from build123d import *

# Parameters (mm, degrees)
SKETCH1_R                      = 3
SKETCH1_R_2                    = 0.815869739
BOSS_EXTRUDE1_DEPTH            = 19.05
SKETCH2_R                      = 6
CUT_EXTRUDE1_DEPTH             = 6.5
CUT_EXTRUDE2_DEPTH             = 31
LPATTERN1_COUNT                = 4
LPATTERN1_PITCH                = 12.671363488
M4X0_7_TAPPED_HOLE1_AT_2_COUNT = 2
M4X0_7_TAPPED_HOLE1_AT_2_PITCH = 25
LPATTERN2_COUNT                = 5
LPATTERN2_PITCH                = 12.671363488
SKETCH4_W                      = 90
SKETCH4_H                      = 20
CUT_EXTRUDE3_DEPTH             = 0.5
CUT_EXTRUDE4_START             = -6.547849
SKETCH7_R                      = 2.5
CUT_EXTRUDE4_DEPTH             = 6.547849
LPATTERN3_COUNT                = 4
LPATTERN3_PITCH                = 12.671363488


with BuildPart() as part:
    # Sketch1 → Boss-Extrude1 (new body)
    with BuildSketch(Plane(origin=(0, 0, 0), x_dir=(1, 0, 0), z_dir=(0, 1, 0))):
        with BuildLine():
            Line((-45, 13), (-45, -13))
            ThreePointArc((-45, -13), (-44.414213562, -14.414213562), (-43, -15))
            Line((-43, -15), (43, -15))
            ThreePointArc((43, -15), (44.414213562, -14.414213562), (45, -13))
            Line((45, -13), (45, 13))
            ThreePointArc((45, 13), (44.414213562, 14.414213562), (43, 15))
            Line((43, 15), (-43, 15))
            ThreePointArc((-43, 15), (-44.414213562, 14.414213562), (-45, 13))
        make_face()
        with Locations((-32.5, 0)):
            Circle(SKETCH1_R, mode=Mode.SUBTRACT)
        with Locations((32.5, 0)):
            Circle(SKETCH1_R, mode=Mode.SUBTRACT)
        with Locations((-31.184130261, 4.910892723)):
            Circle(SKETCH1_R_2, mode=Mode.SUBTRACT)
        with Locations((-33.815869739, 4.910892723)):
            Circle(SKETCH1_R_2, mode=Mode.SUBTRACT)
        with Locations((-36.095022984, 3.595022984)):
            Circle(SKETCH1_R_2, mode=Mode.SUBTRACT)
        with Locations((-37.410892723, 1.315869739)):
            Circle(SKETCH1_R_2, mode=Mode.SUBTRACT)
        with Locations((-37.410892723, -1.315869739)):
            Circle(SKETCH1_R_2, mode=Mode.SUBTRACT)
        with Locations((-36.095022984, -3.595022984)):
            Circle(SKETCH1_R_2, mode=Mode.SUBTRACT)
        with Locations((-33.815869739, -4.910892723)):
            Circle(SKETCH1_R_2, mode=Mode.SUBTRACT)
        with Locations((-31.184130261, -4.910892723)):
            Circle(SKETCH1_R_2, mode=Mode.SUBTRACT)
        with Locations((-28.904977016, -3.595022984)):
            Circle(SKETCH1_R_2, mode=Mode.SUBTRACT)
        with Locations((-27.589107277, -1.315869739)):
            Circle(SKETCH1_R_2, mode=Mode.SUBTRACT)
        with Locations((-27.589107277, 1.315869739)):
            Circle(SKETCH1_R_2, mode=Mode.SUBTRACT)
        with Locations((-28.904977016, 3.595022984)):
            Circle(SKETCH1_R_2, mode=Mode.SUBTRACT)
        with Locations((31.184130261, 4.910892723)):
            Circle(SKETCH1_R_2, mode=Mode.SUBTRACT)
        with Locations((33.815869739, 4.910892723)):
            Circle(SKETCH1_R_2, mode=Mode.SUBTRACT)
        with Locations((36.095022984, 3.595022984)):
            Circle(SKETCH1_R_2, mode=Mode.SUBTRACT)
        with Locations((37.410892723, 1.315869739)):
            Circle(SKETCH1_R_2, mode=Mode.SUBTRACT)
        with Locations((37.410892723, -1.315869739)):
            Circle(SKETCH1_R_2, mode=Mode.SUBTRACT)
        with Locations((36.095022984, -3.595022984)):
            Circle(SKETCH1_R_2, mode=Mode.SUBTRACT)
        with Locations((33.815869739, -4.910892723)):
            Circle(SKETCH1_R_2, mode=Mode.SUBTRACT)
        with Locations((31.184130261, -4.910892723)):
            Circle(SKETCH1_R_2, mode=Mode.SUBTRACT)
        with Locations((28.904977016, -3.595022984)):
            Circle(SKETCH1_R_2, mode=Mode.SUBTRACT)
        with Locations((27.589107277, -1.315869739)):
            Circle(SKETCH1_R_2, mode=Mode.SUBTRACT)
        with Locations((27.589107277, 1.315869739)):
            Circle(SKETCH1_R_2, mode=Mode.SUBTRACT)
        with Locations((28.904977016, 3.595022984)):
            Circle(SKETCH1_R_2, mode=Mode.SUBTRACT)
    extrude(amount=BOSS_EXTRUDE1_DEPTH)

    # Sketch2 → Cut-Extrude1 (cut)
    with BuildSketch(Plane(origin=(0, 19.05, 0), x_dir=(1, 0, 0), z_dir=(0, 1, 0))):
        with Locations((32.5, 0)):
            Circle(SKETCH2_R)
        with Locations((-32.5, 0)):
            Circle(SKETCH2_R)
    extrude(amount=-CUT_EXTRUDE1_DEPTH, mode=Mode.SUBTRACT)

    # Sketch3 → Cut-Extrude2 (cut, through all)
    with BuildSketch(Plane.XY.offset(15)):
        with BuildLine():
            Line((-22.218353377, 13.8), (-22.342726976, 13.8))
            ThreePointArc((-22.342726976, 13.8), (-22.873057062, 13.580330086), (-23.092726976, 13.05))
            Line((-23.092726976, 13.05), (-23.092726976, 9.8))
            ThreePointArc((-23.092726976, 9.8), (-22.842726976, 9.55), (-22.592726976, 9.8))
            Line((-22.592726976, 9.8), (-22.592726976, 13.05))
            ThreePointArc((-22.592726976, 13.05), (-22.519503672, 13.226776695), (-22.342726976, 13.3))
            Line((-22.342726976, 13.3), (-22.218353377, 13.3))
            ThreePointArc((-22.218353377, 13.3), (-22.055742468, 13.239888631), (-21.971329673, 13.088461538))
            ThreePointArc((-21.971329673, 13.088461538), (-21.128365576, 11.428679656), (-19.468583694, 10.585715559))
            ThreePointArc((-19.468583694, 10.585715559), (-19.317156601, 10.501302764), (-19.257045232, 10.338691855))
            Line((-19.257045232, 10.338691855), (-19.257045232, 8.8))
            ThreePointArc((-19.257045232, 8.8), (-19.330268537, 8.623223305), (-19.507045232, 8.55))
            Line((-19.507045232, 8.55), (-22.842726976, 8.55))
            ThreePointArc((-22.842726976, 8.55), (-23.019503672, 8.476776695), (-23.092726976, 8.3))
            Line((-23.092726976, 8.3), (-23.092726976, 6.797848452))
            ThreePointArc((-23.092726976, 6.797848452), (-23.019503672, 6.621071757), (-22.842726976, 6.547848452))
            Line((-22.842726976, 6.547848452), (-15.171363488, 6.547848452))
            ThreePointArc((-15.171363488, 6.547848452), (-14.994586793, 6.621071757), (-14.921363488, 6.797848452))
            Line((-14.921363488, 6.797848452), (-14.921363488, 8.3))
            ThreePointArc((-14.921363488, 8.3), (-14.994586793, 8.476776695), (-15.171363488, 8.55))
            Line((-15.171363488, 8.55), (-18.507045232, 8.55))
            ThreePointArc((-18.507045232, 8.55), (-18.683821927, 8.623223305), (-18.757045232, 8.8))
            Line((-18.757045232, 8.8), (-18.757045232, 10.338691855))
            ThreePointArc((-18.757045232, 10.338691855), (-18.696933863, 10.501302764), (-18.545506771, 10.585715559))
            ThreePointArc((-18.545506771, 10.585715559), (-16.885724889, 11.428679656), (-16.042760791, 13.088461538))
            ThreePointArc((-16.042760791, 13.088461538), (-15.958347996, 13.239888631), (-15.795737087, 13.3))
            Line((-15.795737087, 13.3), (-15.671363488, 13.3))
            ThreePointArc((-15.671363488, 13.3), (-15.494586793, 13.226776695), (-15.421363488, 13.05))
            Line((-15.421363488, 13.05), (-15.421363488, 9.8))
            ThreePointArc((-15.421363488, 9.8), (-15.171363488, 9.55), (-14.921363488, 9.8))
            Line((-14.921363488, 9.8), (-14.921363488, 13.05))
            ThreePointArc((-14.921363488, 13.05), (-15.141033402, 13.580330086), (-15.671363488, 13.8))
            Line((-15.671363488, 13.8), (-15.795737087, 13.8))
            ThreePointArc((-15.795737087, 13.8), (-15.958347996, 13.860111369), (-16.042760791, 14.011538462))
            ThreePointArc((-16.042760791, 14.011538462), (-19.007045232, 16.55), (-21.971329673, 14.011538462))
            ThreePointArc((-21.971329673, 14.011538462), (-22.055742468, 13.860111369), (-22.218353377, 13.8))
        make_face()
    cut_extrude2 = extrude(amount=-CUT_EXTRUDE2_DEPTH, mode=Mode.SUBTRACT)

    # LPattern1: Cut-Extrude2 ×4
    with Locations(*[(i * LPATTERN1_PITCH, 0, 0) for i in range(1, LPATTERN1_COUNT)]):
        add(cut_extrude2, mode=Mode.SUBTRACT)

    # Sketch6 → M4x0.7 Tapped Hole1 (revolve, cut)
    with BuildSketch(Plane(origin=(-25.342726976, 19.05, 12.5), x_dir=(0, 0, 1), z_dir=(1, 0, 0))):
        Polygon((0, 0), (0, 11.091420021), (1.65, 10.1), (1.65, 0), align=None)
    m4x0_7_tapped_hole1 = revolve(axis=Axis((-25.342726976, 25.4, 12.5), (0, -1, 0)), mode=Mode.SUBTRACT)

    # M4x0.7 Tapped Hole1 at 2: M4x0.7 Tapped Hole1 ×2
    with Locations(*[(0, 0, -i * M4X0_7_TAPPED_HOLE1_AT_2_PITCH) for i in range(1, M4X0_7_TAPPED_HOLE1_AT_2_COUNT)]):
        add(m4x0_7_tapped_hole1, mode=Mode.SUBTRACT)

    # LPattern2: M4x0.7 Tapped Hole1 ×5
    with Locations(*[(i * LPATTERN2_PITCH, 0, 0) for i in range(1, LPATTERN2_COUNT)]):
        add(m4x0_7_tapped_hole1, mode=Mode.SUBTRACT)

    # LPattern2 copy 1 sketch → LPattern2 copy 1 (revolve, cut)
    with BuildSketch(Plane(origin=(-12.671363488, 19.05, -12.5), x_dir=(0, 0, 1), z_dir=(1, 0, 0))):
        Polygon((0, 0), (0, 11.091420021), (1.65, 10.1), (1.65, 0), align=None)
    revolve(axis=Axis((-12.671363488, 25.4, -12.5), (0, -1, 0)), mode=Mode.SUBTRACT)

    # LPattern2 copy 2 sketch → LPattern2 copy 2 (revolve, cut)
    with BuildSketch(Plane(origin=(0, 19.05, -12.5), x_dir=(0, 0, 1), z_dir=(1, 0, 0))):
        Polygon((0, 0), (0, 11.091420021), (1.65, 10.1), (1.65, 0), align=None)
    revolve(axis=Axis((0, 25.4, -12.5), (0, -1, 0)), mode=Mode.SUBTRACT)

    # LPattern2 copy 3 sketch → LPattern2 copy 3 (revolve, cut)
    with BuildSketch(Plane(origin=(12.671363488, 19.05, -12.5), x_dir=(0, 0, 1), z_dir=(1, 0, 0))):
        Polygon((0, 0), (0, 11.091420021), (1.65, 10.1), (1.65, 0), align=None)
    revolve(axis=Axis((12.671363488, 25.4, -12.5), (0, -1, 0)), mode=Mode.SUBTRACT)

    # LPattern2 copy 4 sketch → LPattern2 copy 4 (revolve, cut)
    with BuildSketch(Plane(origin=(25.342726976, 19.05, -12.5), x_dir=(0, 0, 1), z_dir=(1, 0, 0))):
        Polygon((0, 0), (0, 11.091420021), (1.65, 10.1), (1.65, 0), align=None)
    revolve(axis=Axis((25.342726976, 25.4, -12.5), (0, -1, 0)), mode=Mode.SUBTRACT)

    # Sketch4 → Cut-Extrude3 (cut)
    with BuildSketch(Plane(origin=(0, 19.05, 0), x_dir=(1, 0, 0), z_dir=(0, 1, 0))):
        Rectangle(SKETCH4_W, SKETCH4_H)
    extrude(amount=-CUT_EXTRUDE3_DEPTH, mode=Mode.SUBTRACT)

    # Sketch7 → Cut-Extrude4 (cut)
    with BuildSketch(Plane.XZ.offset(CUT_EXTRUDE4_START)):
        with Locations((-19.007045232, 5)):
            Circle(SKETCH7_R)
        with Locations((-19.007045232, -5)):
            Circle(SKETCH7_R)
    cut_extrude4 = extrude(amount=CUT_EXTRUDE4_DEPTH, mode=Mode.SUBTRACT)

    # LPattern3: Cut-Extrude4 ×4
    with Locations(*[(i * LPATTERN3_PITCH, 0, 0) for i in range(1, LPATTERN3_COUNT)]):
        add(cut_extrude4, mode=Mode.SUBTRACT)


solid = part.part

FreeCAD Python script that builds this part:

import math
import FreeCAD as App
import Part
import Sketcher
Q = App.Units.Quantity


def add_polygon(sketch, points):
    """Adds a closed chain of lines whose ends are joined by coincident constraints."""
    first, n = sketch.GeometryCount, len(points)
    for a, b in zip(points, points[1:] + points[:1]):
        sketch.addGeometry(Part.LineSegment(App.Vector(*a, 0), App.Vector(*b, 0)), False)
    for i in range(n):
        sketch.addConstraint(Sketcher.Constraint("Coincident", first + i, 2, first + (i + 1) % n, 1))

doc = App.newDocument("Part")
body = doc.addObject("PartDesign::Body", "Body")

sketch1 = body.newObject("Sketcher::SketchObject", "Sketch")
sketch1.AttachmentSupport = (doc.getObject("XZ_Plane"), [""])
sketch1.MapMode = "FlatFace"
sketch1.addGeometry([
    Part.LineSegment(App.Vector(-45, -13, 0), App.Vector(-45, 13, 0)),
    Part.ArcOfCircle(Part.Circle(App.Vector(-43, 13, 0), App.Vector(0, 0, 1), 2), math.radians(90), math.radians(180)),
    Part.LineSegment(App.Vector(-43, 15, 0), App.Vector(43, 15, 0)),
    Part.ArcOfCircle(Part.Circle(App.Vector(43, 13, 0), App.Vector(0, 0, 1), 2), math.radians(0), math.radians(90)),
    Part.LineSegment(App.Vector(45, 13, 0), App.Vector(45, -13, 0)),
    Part.ArcOfCircle(Part.Circle(App.Vector(43, -13, 0), App.Vector(0, 0, 1), 2), math.radians(-90), math.radians(0)),
    Part.LineSegment(App.Vector(43, -15, 0), App.Vector(-43, -15, 0)),
    Part.ArcOfCircle(Part.Circle(App.Vector(-43, -13, 0), App.Vector(0, 0, 1), 2), math.radians(-180), math.radians(-90)),
    Part.Circle(App.Vector(-33.81587, 4.910893, 0), App.Vector(0, 0, 1), 0.81587),
    Part.Circle(App.Vector(-31.18413, 4.910893, 0), App.Vector(0, 0, 1), 0.81587),
    Part.Circle(App.Vector(-36.095023, 3.595023, 0), App.Vector(0, 0, 1), 0.81587),
    Part.Circle(App.Vector(-28.904977, 3.595023, 0), App.Vector(0, 0, 1), 0.81587),
    Part.Circle(App.Vector(-37.410893, 1.31587, 0), App.Vector(0, 0, 1), 0.81587),
    Part.Circle(App.Vector(-27.589107, 1.31587, 0), App.Vector(0, 0, 1), 0.81587),
    Part.Circle(App.Vector(31.18413, 4.910893, 0), App.Vector(0, 0, 1), 0.81587),
    Part.Circle(App.Vector(33.81587, 4.910893, 0), App.Vector(0, 0, 1), 0.81587),
    Part.Circle(App.Vector(28.904977, 3.595023, 0), App.Vector(0, 0, 1), 0.81587),
    Part.Circle(App.Vector(36.095023, 3.595023, 0), App.Vector(0, 0, 1), 0.81587),
    Part.Circle(App.Vector(27.589107, 1.31587, 0), App.Vector(0, 0, 1), 0.81587),
    Part.Circle(App.Vector(37.410893, 1.31587, 0), App.Vector(0, 0, 1), 0.81587),
    Part.Circle(App.Vector(-32.5, 0, 0), App.Vector(0, 0, 1), 3),
    Part.Circle(App.Vector(-37.410893, -1.31587, 0), App.Vector(0, 0, 1), 0.81587),
    Part.Circle(App.Vector(-27.589107, -1.31587, 0), App.Vector(0, 0, 1), 0.81587),
    Part.Circle(App.Vector(-36.095023, -3.595023, 0), App.Vector(0, 0, 1), 0.81587),
    Part.Circle(App.Vector(-28.904977, -3.595023, 0), App.Vector(0, 0, 1), 0.81587),
    Part.Circle(App.Vector(-33.81587, -4.910893, 0), App.Vector(0, 0, 1), 0.81587),
    Part.Circle(App.Vector(-31.18413, -4.910893, 0), App.Vector(0, 0, 1), 0.81587),
    Part.Circle(App.Vector(27.589107, -1.31587, 0), App.Vector(0, 0, 1), 0.81587),
    Part.Circle(App.Vector(32.5, 0, 0), App.Vector(0, 0, 1), 3),
    Part.Circle(App.Vector(37.410893, -1.31587, 0), App.Vector(0, 0, 1), 0.81587),
    Part.Circle(App.Vector(28.904977, -3.595023, 0), App.Vector(0, 0, 1), 0.81587),
    Part.Circle(App.Vector(36.095023, -3.595023, 0), App.Vector(0, 0, 1), 0.81587),
    Part.Circle(App.Vector(31.18413, -4.910893, 0), App.Vector(0, 0, 1), 0.81587),
    Part.Circle(App.Vector(33.81587, -4.910893, 0), App.Vector(0, 0, 1), 0.81587),
], False)
sketch1.addConstraint([
    Sketcher.Constraint("Tangent", 0, 2, 1, 2),
    Sketcher.Constraint("Tangent", 1, 1, 2, 1),
    Sketcher.Constraint("Tangent", 2, 2, 3, 2),
    Sketcher.Constraint("Tangent", 3, 1, 4, 1),
    Sketcher.Constraint("Tangent", 4, 2, 5, 2),
    Sketcher.Constraint("Tangent", 5, 1, 6, 1),
    Sketcher.Constraint("Tangent", 6, 2, 7, 2),
    Sketcher.Constraint("Tangent", 7, 1, 0, 1),
    Sketcher.Constraint("Vertical", 0),
    Sketcher.Constraint("Horizontal", 2),
    Sketcher.Constraint("Vertical", 4),
    Sketcher.Constraint("Horizontal", 6),
    Sketcher.Constraint("Equal", 1, 3),
    Sketcher.Constraint("Equal", 3, 5),
    Sketcher.Constraint("Equal", 5, 7),
    Sketcher.Constraint("Equal", 8, 9),
    Sketcher.Constraint("Equal", 9, 10),
    Sketcher.Constraint("Equal", 10, 11),
    Sketcher.Constraint("Equal", 11, 12),
    Sketcher.Constraint("Equal", 12, 13),
    Sketcher.Constraint("Equal", 13, 14),
    Sketcher.Constraint("Equal", 14, 15),
    Sketcher.Constraint("Equal", 15, 16),
    Sketcher.Constraint("Equal", 16, 17),
    Sketcher.Constraint("Equal", 17, 18),
    Sketcher.Constraint("Equal", 18, 19),
    Sketcher.Constraint("Equal", 19, 21),
    Sketcher.Constraint("Equal", 21, 22),
    Sketcher.Constraint("Equal", 22, 23),
    Sketcher.Constraint("Equal", 23, 24),
    Sketcher.Constraint("Equal", 24, 25),
    Sketcher.Constraint("Equal", 25, 26),
    Sketcher.Constraint("Equal", 26, 27),
    Sketcher.Constraint("Equal", 20, 28),
    Sketcher.Constraint("Equal", 27, 29),
    Sketcher.Constraint("Equal", 29, 30),
    Sketcher.Constraint("Equal", 30, 31),
    Sketcher.Constraint("Equal", 31, 32),
    Sketcher.Constraint("Equal", 32, 33),
    Sketcher.Constraint("Symmetric", 1, 3, 5, 3, -1, 1),
    Sketcher.Constraint("Symmetric", 19, 3, 21, 3, -1, 1),
    Sketcher.Constraint("Symmetric", 18, 3, 22, 3, -1, 1),
    Sketcher.Constraint("Symmetric", 17, 3, 23, 3, -1, 1),
    Sketcher.Constraint("Symmetric", 16, 3, 24, 3, -1, 1),
    Sketcher.Constraint("Symmetric", 15, 3, 25, 3, -1, 1),
    Sketcher.Constraint("Symmetric", 14, 3, 26, 3, -1, 1),
    Sketcher.Constraint("Symmetric", 13, 3, 27, 3, -1, 1),
    Sketcher.Constraint("Symmetric", 20, 3, 28, 3, -1, 1),
    Sketcher.Constraint("Symmetric", 12, 3, 29, 3, -1, 1),
    Sketcher.Constraint("Symmetric", 11, 3, 30, 3, -1, 1),
    Sketcher.Constraint("Symmetric", 10, 3, 31, 3, -1, 1),
    Sketcher.Constraint("Symmetric", 9, 3, 32, 3, -1, 1),
    Sketcher.Constraint("Symmetric", 8, 3, 33, 3, -1, 1),
    Sketcher.Constraint("Symmetric", 9, 3, 14, 3, -2),
    Sketcher.Constraint("Symmetric", 8, 3, 15, 3, -2),
    Sketcher.Constraint("Symmetric", 11, 3, 16, 3, -2),
    Sketcher.Constraint("Symmetric", 10, 3, 17, 3, -2),
    Sketcher.Constraint("Symmetric", 13, 3, 18, 3, -2),
    Sketcher.Constraint("Symmetric", 12, 3, 19, 3, -2),
    Sketcher.Constraint("PointOnObject", 20, 3, -1),
    Sketcher.Constraint("Horizontal", 8, 3, 9, 3),
    Sketcher.Constraint("Horizontal", 10, 3, 11, 3),
    Sketcher.Constraint("Horizontal", 12, 3, 13, 3),
    Sketcher.Constraint("Diameter", 20, 6.0),
    Sketcher.Constraint("Radius", 1, 2.0),
    Sketcher.Constraint("DistanceX", 2, 1, 2, 2, 86.0),
    Sketcher.Constraint("DistanceY", 0, 1, 0, 2, 26.0),
    Sketcher.Constraint("DistanceX", 20, 3, -1, 1, 32.5),
    Sketcher.Constraint("Diameter", 8, 1.631739),
    Sketcher.Constraint("DistanceX", 8, 3, -1, 1, 33.81587),
    Sketcher.Constraint("DistanceX", 9, 3, -1, 1, 31.18413),
    Sketcher.Constraint("DistanceY", -1, 1, 12, 3, 1.31587),
    Sketcher.Constraint("DistanceY", 10, 3, 8, 3, 1.31587),
    Sketcher.Constraint("DistanceX", 12, 3, 10, 3, 1.31587),
    Sketcher.Constraint("DistanceX", 11, 3, 13, 3, 1.31587),
    Sketcher.Constraint("DistanceY", -1, 1, 8, 3, 4.910893),
    Sketcher.Constraint("DistanceX", 10, 3, -1, 1, 36.095023),
    Sketcher.Constraint("DistanceX", 11, 3, -1, 1, 28.904977),
])
pad1 = body.newObject("PartDesign::Pad", "Pad")
pad1.Profile = sketch1
pad1.Length = 19.05
pad1.Reversed = True

sketch2 = body.newObject("Sketcher::SketchObject", "Sketch001")
sketch2.AttachmentSupport = (doc.getObject("XZ_Plane"), [""])
sketch2.MapMode = "FlatFace"
sketch2.AttachmentOffset = App.Placement(App.Vector(0, 0, -19.05), App.Rotation())
sketch2.addGeometry([
    Part.Circle(App.Vector(32.5, 0, 0), App.Vector(0, 0, 1), 6),
    Part.Circle(App.Vector(-32.5, 0, 0), App.Vector(0, 0, 1), 6),
], False)
sketch2.addConstraint([
    Sketcher.Constraint("Equal", 0, 1),
    Sketcher.Constraint("Symmetric", 0, 3, 1, 3, -1, 1),
    Sketcher.Constraint("PointOnObject", 0, 3, -1),
    Sketcher.Constraint("Diameter", 0, 12.0),
    Sketcher.Constraint("DistanceX", 1, 3, 0, 3, 65.0),
])
pocket1 = body.newObject("PartDesign::Pocket", "Pocket")
pocket1.Profile = sketch2
pocket1.Length = 6.5
pocket1.Reversed = True

sketch3 = body.newObject("Sketcher::SketchObject", "Sketch002")
sketch3.AttachmentSupport = (doc.getObject("XY_Plane"), [""])
sketch3.MapMode = "FlatFace"
sketch3.AttachmentOffset = App.Placement(App.Vector(0, 0, 15), App.Rotation())
sketch3.addGeometry([
    Part.LineSegment(App.Vector(-22.218353, 13.8, 0), App.Vector(-22.342727, 13.8, 0)),
    Part.ArcOfCircle(Part.Circle(App.Vector(-22.342727, 13.05, 0), App.Vector(0, 0, 1), 0.75), math.radians(90), math.radians(180)),
    Part.LineSegment(App.Vector(-23.092727, 13.05, 0), App.Vector(-23.092727, 9.8, 0)),
    Part.ArcOfCircle(Part.Circle(App.Vector(-22.842727, 9.8, 0), App.Vector(0, 0, 1), 0.25), math.radians(180), math.radians(360)),
    Part.LineSegment(App.Vector(-22.592727, 9.8, 0), App.Vector(-22.592727, 13.05, 0)),
    Part.ArcOfCircle(Part.Circle(App.Vector(-22.342727, 13.05, 0), App.Vector(0, 0, 1), 0.25), math.radians(90), math.radians(180)),
    Part.LineSegment(App.Vector(-22.342727, 13.3, 0), App.Vector(-22.218353, 13.3, 0)),
    Part.ArcOfCircle(Part.Circle(App.Vector(-22.218353, 13.05, 0), App.Vector(0, 0, 1), 0.25), math.radians(8.849883), math.radians(90)),
    Part.ArcOfCircle(Part.Circle(App.Vector(-19.007045, 13.55, 0), App.Vector(0, 0, 1), 3), math.radians(-171.150117), math.radians(-98.849883)),
    Part.ArcOfCircle(Part.Circle(App.Vector(-19.507045, 10.338692, 0), App.Vector(0, 0, 1), 0.25), math.radians(0), math.radians(81.150117)),
    Part.LineSegment(App.Vector(-19.257045, 10.338692, 0), App.Vector(-19.257045, 8.8, 0)),
    Part.ArcOfCircle(Part.Circle(App.Vector(-19.507045, 8.8, 0), App.Vector(0, 0, 1), 0.25), math.radians(-90), math.radians(0)),
    Part.LineSegment(App.Vector(-19.507045, 8.55, 0), App.Vector(-22.842727, 8.55, 0)),
    Part.ArcOfCircle(Part.Circle(App.Vector(-22.842727, 8.3, 0), App.Vector(0, 0, 1), 0.25), math.radians(90), math.radians(180)),
    Part.LineSegment(App.Vector(-23.092727, 8.3, 0), App.Vector(-23.092727, 6.797848, 0)),
    Part.ArcOfCircle(Part.Circle(App.Vector(-22.842727, 6.797848, 0), App.Vector(0, 0, 1), 0.25), math.radians(180), math.radians(270)),
    Part.LineSegment(App.Vector(-22.842727, 6.547848, 0), App.Vector(-15.171363, 6.547848, 0)),
    Part.ArcOfCircle(Part.Circle(App.Vector(-15.171363, 6.797848, 0), App.Vector(0, 0, 1), 0.25), math.radians(-90), math.radians(0)),
    Part.LineSegment(App.Vector(-14.921363, 6.797848, 0), App.Vector(-14.921363, 8.3, 0)),
    Part.ArcOfCircle(Part.Circle(App.Vector(-15.171363, 8.3, 0), App.Vector(0, 0, 1), 0.25), math.radians(0), math.radians(90)),
    Part.LineSegment(App.Vector(-15.171363, 8.55, 0), App.Vector(-18.507045, 8.55, 0)),
    Part.ArcOfCircle(Part.Circle(App.Vector(-18.507045, 8.8, 0), App.Vector(0, 0, 1), 0.25), math.radians(-180), math.radians(-90)),
    Part.LineSegment(App.Vector(-18.757045, 8.8, 0), App.Vector(-18.757045, 10.338692, 0)),
    Part.ArcOfCircle(Part.Circle(App.Vector(-18.507045, 10.338692, 0), App.Vector(0, 0, 1), 0.25), math.radians(98.849884), math.radians(180)),
    Part.ArcOfCircle(Part.Circle(App.Vector(-19.007045, 13.55, 0), App.Vector(0, 0, 1), 3), math.radians(-81.150117), math.radians(-8.849883)),
    Part.ArcOfCircle(Part.Circle(App.Vector(-15.795737, 13.05, 0), App.Vector(0, 0, 1), 0.25), math.radians(90), math.radians(171.150117)),
    Part.LineSegment(App.Vector(-15.795737, 13.3, 0), App.Vector(-15.671363, 13.3, 0)),
    Part.ArcOfCircle(Part.Circle(App.Vector(-15.671363, 13.05, 0), App.Vector(0, 0, 1), 0.25), math.radians(0), math.radians(90)),
    Part.LineSegment(App.Vector(-15.421363, 13.05, 0), App.Vector(-15.421363, 9.8, 0)),
    Part.ArcOfCircle(Part.Circle(App.Vector(-15.171363, 9.8, 0), App.Vector(0, 0, 1), 0.25), math.radians(180), math.radians(360)),
    Part.LineSegment(App.Vector(-14.921363, 9.8, 0), App.Vector(-14.921363, 13.05, 0)),
    Part.ArcOfCircle(Part.Circle(App.Vector(-15.671363, 13.05, 0), App.Vector(0, 0, 1), 0.75), math.radians(0), math.radians(90)),
    Part.LineSegment(App.Vector(-15.671363, 13.8, 0), App.Vector(-15.795737, 13.8, 0)),
    Part.ArcOfCircle(Part.Circle(App.Vector(-15.795737, 14.05, 0), App.Vector(0, 0, 1), 0.25), math.radians(-171.150117), math.radians(-90)),
    Part.ArcOfCircle(Part.Circle(App.Vector(-19.007045, 13.55, 0), App.Vector(0, 0, 1), 3), math.radians(8.849883), math.radians(171.150117)),
    Part.ArcOfCircle(Part.Circle(App.Vector(-22.218353, 14.05, 0), App.Vector(0, 0, 1), 0.25), math.radians(-90), math.radians(-8.849883)),
], False)
sketch3.addConstraint([
    Sketcher.Constraint("Tangent", 0, 2, 1, 1),
    Sketcher.Constraint("Tangent", 1, 2, 2, 1),
    Sketcher.Constraint("Tangent", 2, 2, 3, 1),
    Sketcher.Constraint("Tangent", 3, 2, 4, 1),
    Sketcher.Constraint("Tangent", 4, 2, 5, 2),
    Sketcher.Constraint("Tangent", 5, 1, 6, 1),
    Sketcher.Constraint("Tangent", 6, 2, 7, 2),
    Sketcher.Constraint("Tangent", 7, 1, 8, 1),
    Sketcher.Constraint("Tangent", 8, 2, 9, 2),
    Sketcher.Constraint("Tangent", 9, 1, 10, 1),
    Sketcher.Constraint("Tangent", 10, 2, 11, 2),
    Sketcher.Constraint("Tangent", 11, 1, 12, 1),
    Sketcher.Constraint("Tangent", 12, 2, 13, 1),
    Sketcher.Constraint("Tangent", 13, 2, 14, 1),
    Sketcher.Constraint("Tangent", 14, 2, 15, 1),
    Sketcher.Constraint("Tangent", 15, 2, 16, 1),
    Sketcher.Constraint("Tangent", 16, 2, 17, 1),
    Sketcher.Constraint("Tangent", 17, 2, 18, 1),
    Sketcher.Constraint("Tangent", 18, 2, 19, 1),
    Sketcher.Constraint("Tangent", 19, 2, 20, 1),
    Sketcher.Constraint("Tangent", 20, 2, 21, 2),
    Sketcher.Constraint("Tangent", 21, 1, 22, 1),
    Sketcher.Constraint("Tangent", 22, 2, 23, 2),
    Sketcher.Constraint("Tangent", 23, 1, 24, 1),
    Sketcher.Constraint("Tangent", 24, 2, 25, 2),
    Sketcher.Constraint("Tangent", 25, 1, 26, 1),
    Sketcher.Constraint("Tangent", 26, 2, 27, 2),
    Sketcher.Constraint("Tangent", 27, 1, 28, 1),
    Sketcher.Constraint("Tangent", 28, 2, 29, 1),
    Sketcher.Constraint("Tangent", 29, 2, 30, 1),
    Sketcher.Constraint("Tangent", 30, 2, 31, 1),
    Sketcher.Constraint("Tangent", 31, 2, 32, 1),
    Sketcher.Constraint("Tangent", 32, 2, 33, 2),
    Sketcher.Constraint("Tangent", 33, 1, 34, 1),
    Sketcher.Constraint("Tangent", 34, 2, 35, 2),
    Sketcher.Constraint("Tangent", 35, 1, 0, 1),
    Sketcher.Constraint("Horizontal", 0),
    Sketcher.Constraint("Vertical", 2),
    Sketcher.Constraint("Vertical", 4),
    Sketcher.Constraint("Horizontal", 6),
    Sketcher.Constraint("Vertical", 10),
    Sketcher.Constraint("Horizontal", 12),
    Sketcher.Constraint("Vertical", 14),
    Sketcher.Constraint("Horizontal", 16),
    Sketcher.Constraint("Vertical", 18),
    Sketcher.Constraint("Horizontal", 20),
    Sketcher.Constraint("Vertical", 22),
    Sketcher.Constraint("Horizontal", 26),
    Sketcher.Constraint("Vertical", 28),
    Sketcher.Constraint("Vertical", 30),
    Sketcher.Constraint("Horizontal", 32),
    Sketcher.Constraint("Coincident", 5, 3, 1, 3),
    Sketcher.Constraint("Coincident", 24, 3, 8, 3),
    Sketcher.Constraint("Coincident", 31, 3, 27, 3),
    Sketcher.Constraint("Coincident", 34, 3, 8, 3),
    Sketcher.Constraint("Equal", 3, 5),
    Sketcher.Constraint("Equal", 5, 7),
    Sketcher.Constraint("Equal", 7, 9),
    Sketcher.Constraint("Equal", 9, 11),
    Sketcher.Constraint("Equal", 11, 13),
    Sketcher.Constraint("Equal", 13, 15),
    Sketcher.Constraint("Equal", 15, 17),
    Sketcher.Constraint("Equal", 17, 19),
    Sketcher.Constraint("Equal", 19, 21),
    Sketcher.Constraint("Equal", 21, 23),
    Sketcher.Constraint("Equal", 8, 24),
    Sketcher.Constraint("Equal", 23, 25),
    Sketcher.Constraint("Equal", 25, 27),
    Sketcher.Constraint("Equal", 27, 29),
    Sketcher.Constraint("Equal", 29, 33),
    Sketcher.Constraint("Equal", 24, 34),
    Sketcher.Constraint("Equal", 33, 35),
    Sketcher.Constraint("Horizontal", 13, 3, 19, 3),
    Sketcher.Constraint("Horizontal", 9, 3, 23, 3),
    Sketcher.Constraint("Horizontal", 7, 3, 25, 3),
    Sketcher.Constraint("Horizontal", 3, 3, 29, 3),
    Sketcher.Constraint("Vertical", 3, 3, 13, 3),
    Sketcher.Constraint("Vertical", 19, 3, 29, 3),
    Sketcher.Constraint("Vertical", 25, 3, 33, 3),
    Sketcher.Constraint("Equal", 12, 20),
    Sketcher.Constraint("Radius", 8, 3.0),
    Sketcher.Constraint("Radius", 1, 0.75),
    Sketcher.Constraint("DistanceY", 11, 3, 3, 3, 1.0),
    Sketcher.Constraint("DistanceX", 11, 3, 21, 3, 1.0),
    Sketcher.Constraint("DistanceY", 2, 2, 2, 1, 3.25),
    Sketcher.Constraint("DistanceY", -1, 1, 3, 3, 9.8),
    Sketcher.Constraint("DistanceX", 12, 2, 12, 1, 3.335682),
    Sketcher.Constraint("DistanceY", 14, 2, 14, 1, 1.502152),
    Sketcher.Constraint("DistanceX", 7, 1, -1, 1, 21.97133),
])
pocket2 = body.newObject("PartDesign::Pocket", "Pocket001")
pocket2.Profile = sketch3
pocket2.Type = "ThroughAll"
doc.recompute()

linearpattern = body.newObject("PartDesign::LinearPattern", "LinearPattern")
linearpattern.Originals = [pocket2]
linearpattern.Direction = (doc.getObject("X_Axis"), [""])
linearpattern.Mode = "offset"
linearpattern.Offset = 12.671363
linearpattern.Occurrences = 4
body.Tip = linearpattern

sketch4 = body.newObject("Sketcher::SketchObject", "Sketch003")
sketch4.AttachmentSupport = (doc.getObject("YZ_Plane"), [""])
sketch4.MapMode = "FlatFace"
sketch4.AttachmentOffset = App.Placement(App.Vector(0, 0, -25.342727), App.Rotation())
add_polygon(sketch4, [(7.95858, 12.5), (19.05, 12.5), (19.05, 14.15), (8.95, 14.15)])
sketch4.addGeometry(Part.LineSegment(App.Vector(19.05, 12.5, 0), App.Vector(7.95858, 12.5, 0)), True)
sketch4.addConstraint([
    Sketcher.Constraint("Horizontal", 0),
    Sketcher.Constraint("Vertical", 1),
    Sketcher.Constraint("Horizontal", 2),
    Sketcher.Constraint("Horizontal", 4),
    Sketcher.Constraint("Coincident", 4, 1, 0, 2),
    Sketcher.Constraint("Equal", 0, 4),
    Sketcher.Constraint("Angle", 3, Q("-121 deg")),
    Sketcher.Constraint("DistanceX", 2, 2, 2, 1, 10.1),
    Sketcher.Constraint("DistanceY", 1, 1, 1, 2, 1.65),
    Sketcher.Constraint("DistanceY", -1, 1, 0, 2, 12.5),
    Sketcher.Constraint("DistanceX", -1, 1, 0, 2, 19.05),
])
groove = body.newObject("PartDesign::Groove", "Groove")
groove.Profile = sketch4
groove.ReferenceAxis = (sketch4, ["Axis0"])
groove.Angle = 360
doc.recompute()

linearpattern2 = body.newObject("PartDesign::LinearPattern", "LinearPattern001")
linearpattern2.Originals = [groove]
linearpattern2.Direction = (doc.getObject("Z_Axis"), [""])
linearpattern2.Mode = "offset"
linearpattern2.Offset = 25
linearpattern2.Occurrences = 2
linearpattern2.Reversed = True
body.Tip = linearpattern2
doc.recompute()

linearpattern3 = body.newObject("PartDesign::LinearPattern", "LinearPattern002")
linearpattern3.Originals = [groove]
linearpattern3.Direction = (doc.getObject("X_Axis"), [""])
linearpattern3.Mode = "offset"
linearpattern3.Offset = 12.671363
linearpattern3.Occurrences = 5
body.Tip = linearpattern3

sketch5 = body.newObject("Sketcher::SketchObject", "Sketch004")
sketch5.AttachmentSupport = (doc.getObject("YZ_Plane"), [""])
sketch5.MapMode = "FlatFace"
sketch5.AttachmentOffset = App.Placement(App.Vector(0, 0, -12.671363), App.Rotation())
add_polygon(sketch5, [(7.95858, -12.5), (19.05, -12.5), (19.05, -10.85), (8.95, -10.85)])
sketch5.addGeometry(Part.LineSegment(App.Vector(19.05, -12.5, 0), App.Vector(7.95858, -12.5, 0)), True)
sketch5.addConstraint([
    Sketcher.Constraint("Horizontal", 0),
    Sketcher.Constraint("Vertical", 1),
    Sketcher.Constraint("Horizontal", 2),
    Sketcher.Constraint("Horizontal", 4),
    Sketcher.Constraint("Coincident", 4, 1, 0, 2),
    Sketcher.Constraint("Equal", 0, 4),
    Sketcher.Constraint("Angle", 3, Q("-121 deg")),
    Sketcher.Constraint("DistanceX", 2, 2, 2, 1, 10.1),
    Sketcher.Constraint("DistanceY", 1, 1, 1, 2, 1.65),
    Sketcher.Constraint("DistanceY", 0, 2, -1, 1, 12.5),
    Sketcher.Constraint("DistanceX", -1, 1, 0, 2, 19.05),
])
groove2 = body.newObject("PartDesign::Groove", "Groove001")
groove2.Profile = sketch5
groove2.ReferenceAxis = (sketch5, ["Axis0"])
groove2.Angle = 360

sketch6 = body.newObject("Sketcher::SketchObject", "Sketch005")
sketch6.AttachmentSupport = (doc.getObject("YZ_Plane"), [""])
sketch6.MapMode = "FlatFace"
add_polygon(sketch6, [(7.95858, -12.5), (19.05, -12.5), (19.05, -10.85), (8.95, -10.85)])
sketch6.addGeometry(Part.LineSegment(App.Vector(19.05, -12.5, 0), App.Vector(7.95858, -12.5, 0)), True)
sketch6.addConstraint([
    Sketcher.Constraint("Horizontal", 0),
    Sketcher.Constraint("Vertical", 1),
    Sketcher.Constraint("Horizontal", 2),
    Sketcher.Constraint("Horizontal", 4),
    Sketcher.Constraint("Coincident", 4, 1, 0, 2),
    Sketcher.Constraint("Equal", 0, 4),
    Sketcher.Constraint("Angle", 3, Q("-121 deg")),
    Sketcher.Constraint("DistanceX", 2, 2, 2, 1, 10.1),
    Sketcher.Constraint("DistanceY", 1, 1, 1, 2, 1.65),
    Sketcher.Constraint("DistanceY", 0, 2, -1, 1, 12.5),
    Sketcher.Constraint("DistanceX", -1, 1, 0, 2, 19.05),
])
groove3 = body.newObject("PartDesign::Groove", "Groove002")
groove3.Profile = sketch6
groove3.ReferenceAxis = (sketch6, ["Axis0"])
groove3.Angle = 360

sketch7 = body.newObject("Sketcher::SketchObject", "Sketch006")
sketch7.AttachmentSupport = (doc.getObject("YZ_Plane"), [""])
sketch7.MapMode = "FlatFace"
sketch7.AttachmentOffset = App.Placement(App.Vector(0, 0, 12.671363), App.Rotation())
add_polygon(sketch7, [(7.95858, -12.5), (19.05, -12.5), (19.05, -10.85), (8.95, -10.85)])
sketch7.addGeometry(Part.LineSegment(App.Vector(19.05, -12.5, 0), App.Vector(7.95858, -12.5, 0)), True)
sketch7.addConstraint([
    Sketcher.Constraint("Horizontal", 0),
    Sketcher.Constraint("Vertical", 1),
    Sketcher.Constraint("Horizontal", 2),
    Sketcher.Constraint("Horizontal", 4),
    Sketcher.Constraint("Coincident", 4, 1, 0, 2),
    Sketcher.Constraint("Equal", 0, 4),
    Sketcher.Constraint("Angle", 3, Q("-121 deg")),
    Sketcher.Constraint("DistanceX", 2, 2, 2, 1, 10.1),
    Sketcher.Constraint("DistanceY", 1, 1, 1, 2, 1.65),
    Sketcher.Constraint("DistanceY", 0, 2, -1, 1, 12.5),
    Sketcher.Constraint("DistanceX", -1, 1, 0, 2, 19.05),
])
groove4 = body.newObject("PartDesign::Groove", "Groove003")
groove4.Profile = sketch7
groove4.ReferenceAxis = (sketch7, ["Axis0"])
groove4.Angle = 360

sketch8 = body.newObject("Sketcher::SketchObject", "Sketch007")
sketch8.AttachmentSupport = (doc.getObject("YZ_Plane"), [""])
sketch8.MapMode = "FlatFace"
sketch8.AttachmentOffset = App.Placement(App.Vector(0, 0, 25.342727), App.Rotation())
add_polygon(sketch8, [(7.95858, -12.5), (19.05, -12.5), (19.05, -10.85), (8.95, -10.85)])
sketch8.addGeometry(Part.LineSegment(App.Vector(19.05, -12.5, 0), App.Vector(7.95858, -12.5, 0)), True)
sketch8.addConstraint([
    Sketcher.Constraint("Horizontal", 0),
    Sketcher.Constraint("Vertical", 1),
    Sketcher.Constraint("Horizontal", 2),
    Sketcher.Constraint("Horizontal", 4),
    Sketcher.Constraint("Coincident", 4, 1, 0, 2),
    Sketcher.Constraint("Equal", 0, 4),
    Sketcher.Constraint("Angle", 3, Q("-121 deg")),
    Sketcher.Constraint("DistanceX", 2, 2, 2, 1, 10.1),
    Sketcher.Constraint("DistanceY", 1, 1, 1, 2, 1.65),
    Sketcher.Constraint("DistanceY", 0, 2, -1, 1, 12.5),
    Sketcher.Constraint("DistanceX", -1, 1, 0, 2, 19.05),
])
groove5 = body.newObject("PartDesign::Groove", "Groove004")
groove5.Profile = sketch8
groove5.ReferenceAxis = (sketch8, ["Axis0"])
groove5.Angle = 360

sketch9 = body.newObject("Sketcher::SketchObject", "Sketch008")
sketch9.AttachmentSupport = (doc.getObject("XZ_Plane"), [""])
sketch9.MapMode = "FlatFace"
sketch9.AttachmentOffset = App.Placement(App.Vector(0, 0, -19.05), App.Rotation())
add_polygon(sketch9, [(-45, -10), (-45, 10), (45, 10), (45, -10)])
sketch9.addConstraint([
    Sketcher.Constraint("Vertical", 0),
    Sketcher.Constraint("Horizontal", 1),
    Sketcher.Constraint("Vertical", 2),
    Sketcher.Constraint("Horizontal", 3),
    Sketcher.Constraint("Symmetric", 0, 2, 2, 2, -1, 1),
    Sketcher.Constraint("DistanceX", 1, 1, 1, 2, 90.0),
    Sketcher.Constraint("DistanceY", 0, 1, 0, 2, 20.0),
])
pocket3 = body.newObject("PartDesign::Pocket", "Pocket002")
pocket3.Profile = sketch9
pocket3.Length = 0.5
pocket3.Reversed = True

sketch10 = body.newObject("Sketcher::SketchObject", "Sketch009")
sketch10.AttachmentSupport = (doc.getObject("XZ_Plane"), [""])
sketch10.MapMode = "FlatFace"
sketch10.AttachmentOffset = App.Placement(App.Vector(0, 0, -6.547849), App.Rotation())
sketch10.addGeometry([
    Part.Circle(App.Vector(-19.007045, 5, 0), App.Vector(0, 0, 1), 2.5),
    Part.Circle(App.Vector(-19.007045, -5, 0), App.Vector(0, 0, 1), 2.5),
], False)
sketch10.addConstraint([
    Sketcher.Constraint("Equal", 0, 1),
    Sketcher.Constraint("Symmetric", 0, 3, 1, 3, -1),
    Sketcher.Constraint("Diameter", 0, 5.0),
    Sketcher.Constraint("DistanceY", -1, 1, 0, 3, 5.0),
    Sketcher.Constraint("DistanceX", 0, 3, -1, 1, 19.007045),
])
pocket4 = body.newObject("PartDesign::Pocket", "Pocket003")
pocket4.Profile = sketch10
pocket4.Length = 6.547849
pocket4.Reversed = True
doc.recompute()

linearpattern4 = body.newObject("PartDesign::LinearPattern", "LinearPattern003")
linearpattern4.Originals = [pocket4]
linearpattern4.Direction = (doc.getObject("X_Axis"), [""])
linearpattern4.Mode = "offset"
linearpattern4.Offset = 12.671363
linearpattern4.Occurrences = 4
body.Tip = linearpattern4

doc.recompute()
